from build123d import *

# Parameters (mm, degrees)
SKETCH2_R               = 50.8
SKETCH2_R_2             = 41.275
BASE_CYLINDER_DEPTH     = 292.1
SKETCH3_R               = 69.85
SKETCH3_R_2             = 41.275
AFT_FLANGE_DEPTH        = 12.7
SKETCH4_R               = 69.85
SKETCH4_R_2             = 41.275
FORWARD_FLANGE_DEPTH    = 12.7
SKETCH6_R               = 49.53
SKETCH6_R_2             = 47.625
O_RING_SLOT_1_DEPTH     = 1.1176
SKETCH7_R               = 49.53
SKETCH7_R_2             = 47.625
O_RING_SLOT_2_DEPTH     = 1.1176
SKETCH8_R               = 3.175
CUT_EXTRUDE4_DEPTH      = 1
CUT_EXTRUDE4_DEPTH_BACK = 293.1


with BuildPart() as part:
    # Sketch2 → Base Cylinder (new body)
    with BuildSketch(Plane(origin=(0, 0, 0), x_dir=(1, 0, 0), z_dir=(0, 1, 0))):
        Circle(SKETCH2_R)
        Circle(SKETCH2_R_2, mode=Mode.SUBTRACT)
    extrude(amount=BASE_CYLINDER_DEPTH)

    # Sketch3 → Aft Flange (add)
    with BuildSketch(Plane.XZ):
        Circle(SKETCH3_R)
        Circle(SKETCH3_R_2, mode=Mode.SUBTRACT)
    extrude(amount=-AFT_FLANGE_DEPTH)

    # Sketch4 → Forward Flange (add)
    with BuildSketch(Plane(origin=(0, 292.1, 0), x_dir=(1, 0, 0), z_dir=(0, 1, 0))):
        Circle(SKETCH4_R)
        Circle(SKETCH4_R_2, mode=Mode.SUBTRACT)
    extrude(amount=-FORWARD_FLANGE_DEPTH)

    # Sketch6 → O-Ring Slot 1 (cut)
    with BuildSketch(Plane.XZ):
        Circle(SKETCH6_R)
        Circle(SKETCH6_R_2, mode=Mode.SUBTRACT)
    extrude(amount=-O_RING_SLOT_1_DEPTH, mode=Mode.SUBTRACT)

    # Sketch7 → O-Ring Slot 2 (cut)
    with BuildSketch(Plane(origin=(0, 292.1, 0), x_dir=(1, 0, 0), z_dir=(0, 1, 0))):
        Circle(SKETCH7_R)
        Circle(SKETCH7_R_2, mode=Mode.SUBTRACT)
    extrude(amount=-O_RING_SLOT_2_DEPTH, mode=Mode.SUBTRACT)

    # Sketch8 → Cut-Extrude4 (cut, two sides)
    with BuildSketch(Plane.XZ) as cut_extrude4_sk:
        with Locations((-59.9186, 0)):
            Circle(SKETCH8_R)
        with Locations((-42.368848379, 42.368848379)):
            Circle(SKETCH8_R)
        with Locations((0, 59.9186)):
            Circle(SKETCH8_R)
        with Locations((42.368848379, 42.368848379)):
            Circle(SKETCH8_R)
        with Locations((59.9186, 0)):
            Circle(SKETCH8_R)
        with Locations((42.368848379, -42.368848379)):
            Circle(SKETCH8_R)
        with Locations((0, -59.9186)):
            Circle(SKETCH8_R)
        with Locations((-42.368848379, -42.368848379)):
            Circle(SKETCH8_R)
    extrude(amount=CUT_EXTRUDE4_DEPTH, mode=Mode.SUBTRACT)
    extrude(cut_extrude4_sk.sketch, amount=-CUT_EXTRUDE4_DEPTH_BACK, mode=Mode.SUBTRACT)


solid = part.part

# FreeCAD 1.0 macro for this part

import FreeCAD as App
import Part
import Sketcher
from FreeCAD import Vector
Q = App.Units.Quantity

doc = App.newDocument("Part")
body = doc.addObject("PartDesign::Body", "Body")

# Sketch on XZ plane
sketch1 = body.newObject("Sketcher::SketchObject", "Sketch")
sketch1.AttachmentSupport = (doc.getObject("XZ_Plane"), [""])
sketch1.MapMode = "FlatFace"
sketch1.addGeometry([
    Part.Circle(Vector(0, 0, 0), Vector(0, 0, 1), 50.8),
    Part.Circle(Vector(0, 0, 0), Vector(0, 0, 1), 41.275),
], False)
sketch1.addConstraint([
    Sketcher.Constraint("Coincident", 0, 3, -1, 1),
    Sketcher.Constraint("Coincident", 1, 3, -1, 1),
    Sketcher.Constraint("Diameter", 0, Q("4 in")),
    Sketcher.Constraint("Diameter", 1, Q("3.25 in")),
])
pad1 = body.newObject("PartDesign::Pad", "Pad")
pad1.Profile = sketch1
pad1.Length = Q("11.5 in")
pad1.Reversed = True

# Sketch on XZ plane
sketch2 = body.newObject("Sketcher::SketchObject", "Sketch001")
sketch2.AttachmentSupport = (doc.getObject("XZ_Plane"), [""])
sketch2.MapMode = "FlatFace"
sketch2.addGeometry([
    Part.Circle(Vector(0, 0, 0), Vector(0, 0, 1), 69.85),
    Part.Circle(Vector(0, 0, 0), Vector(0, 0, 1), 41.275),
], False)
sketch2.addConstraint([
    Sketcher.Constraint("Coincident", 0, 3, -1, 1),
    Sketcher.Constraint("Coincident", 1, 3, -1, 1),
    Sketcher.Constraint("Diameter", 0, Q("5.5 in")),
    Sketcher.Constraint("Diameter", 1, Q("3.25 in")),
])
pad2 = body.newObject("PartDesign::Pad", "Pad001")
pad2.Profile = sketch2
pad2.Length = Q("0.5 in")
pad2.Reversed = True

# Sketch on XZ plane
sketch3 = body.newObject("Sketcher::SketchObject", "Sketch002")
sketch3.AttachmentSupport = (doc.getObject("XZ_Plane"), [""])
sketch3.MapMode = "FlatFace"
sketch3.AttachmentOffset = App.Placement(Vector(0, 0, -11.5 * 25.4), App.Rotation())
sketch3.addGeometry([
    Part.Circle(Vector(0, 0, 0), Vector(0, 0, 1), 69.85),
    Part.Circle(Vector(0, 0, 0), Vector(0, 0, 1), 41.275),
], False)
sketch3.addConstraint([
    Sketcher.Constraint("Coincident", 0, 3, -1, 1),
    Sketcher.Constraint("Coincident", 1, 3, -1, 1),
    Sketcher.Constraint("Diameter", 0, Q("5.5 in")),
    Sketcher.Constraint("Diameter", 1, Q("3.25 in")),
])
pad3 = body.newObject("PartDesign::Pad", "Pad002")
pad3.Profile = sketch3
pad3.Length = Q("0.5 in")

# Sketch on XZ plane
sketch4 = body.newObject("Sketcher::SketchObject", "Sketch003")
sketch4.AttachmentSupport = (doc.getObject("XZ_Plane"), [""])
sketch4.MapMode = "FlatFace"
sketch4.addGeometry([
    Part.Circle(Vector(0, 0, 0), Vector(0, 0, 1), 49.53),
    Part.Circle(Vector(0, 0, 0), Vector(0, 0, 1), 47.625),
], False)
sketch4.addConstraint([
    Sketcher.Constraint("Coincident", 0, 3, -1, 1),
    Sketcher.Constraint("Coincident", 1, 3, -1, 1),
    Sketcher.Constraint("Diameter", 0, Q("3.9 in")),
    Sketcher.Constraint("Diameter", 1, Q("3.75 in")),
])
pocket1 = body.newObject("PartDesign::Pocket", "Pocket")
pocket1.Profile = sketch4
pocket1.Length = Q("0.044 in")

# Sketch on XZ plane
sketch5 = body.newObject("Sketcher::SketchObject", "Sketch004")
sketch5.AttachmentSupport = (doc.getObject("XZ_Plane"), [""])
sketch5.MapMode = "FlatFace"
sketch5.AttachmentOffset = App.Placement(Vector(0, 0, -11.5 * 25.4), App.Rotation())
sketch5.addGeometry([
    Part.Circle(Vector(0, 0, 0), Vector(0, 0, 1), 49.53),
    Part.Circle(Vector(0, 0, 0), Vector(0, 0, 1), 47.625),
], False)
sketch5.addConstraint([
    Sketcher.Constraint("Coincident", 0, 3, -1, 1),
    Sketcher.Constraint("Coincident", 1, 3, -1, 1),
    Sketcher.Constraint("Diameter", 0, Q("3.9 in")),
    Sketcher.Constraint("Diameter", 1, Q("3.75 in")),
])
pocket2 = body.newObject("PartDesign::Pocket", "Pocket001")
pocket2.Profile = sketch5
pocket2.Length = Q("0.044 in")
pocket2.Reversed = True

# Sketch on XZ plane
sketch6 = body.newObject("Sketcher::SketchObject", "Sketch005")
sketch6.AttachmentSupport = (doc.getObject("XZ_Plane"), [""])
sketch6.MapMode = "FlatFace"
sketch6.addGeometry([
    Part.Circle(Vector(-59.9186, 0, 0), Vector(0, 0, 1), 3.175),  # 0
    Part.Circle(Vector(-42.368848, 42.368848, 0), Vector(0, 0, 1), 3.175),  # 1
    Part.Circle(Vector(0, 59.9186, 0), Vector(0, 0, 1), 3.175),  # 2
    Part.Circle(Vector(42.368848, 42.368848, 0), Vector(0, 0, 1), 3.175),  # 3
    Part.Circle(Vector(59.9186, 0, 0), Vector(0, 0, 1), 3.175),  # 4
    Part.Circle(Vector(42.368848, -42.368848, 0), Vector(0, 0, 1), 3.175),  # 5
    Part.Circle(Vector(0, -59.9186, 0), Vector(0, 0, 1), 3.175),  # 6
    Part.Circle(Vector(-42.368848, -42.368848, 0), Vector(0, 0, 1), 3.175),  # 7
], False)
sketch6.addConstraint([
    Sketcher.Constraint("Equal", 0, 1),
    Sketcher.Constraint("Equal", 1, 2),
    Sketcher.Constraint("Equal", 2, 3),
    Sketcher.Constraint("Equal", 3, 4),
    Sketcher.Constraint("Equal", 4, 5),
    Sketcher.Constraint("Equal", 5, 6),
    Sketcher.Constraint("Equal", 6, 7),
    Sketcher.Constraint("Symmetric", 0, 3, 4, 3, -1, 1),
    Sketcher.Constraint("Symmetric", 1, 3, 5, 3, -1, 1),
    Sketcher.Constraint("Symmetric", 2, 3, 6, 3, -1, 1),
    Sketcher.Constraint("Symmetric", 3, 3, 7, 3, -1, 1),
    Sketcher.Constraint("Symmetric", 1, 3, 3, 3, -2),
    Sketcher.Constraint("PointOnObject", 0, 3, -1),
    Sketcher.Constraint("PointOnObject", 2, 3, -2),
    Sketcher.Constraint("Diameter", 0, Q("0.25 in")),
    Sketcher.Constraint("DistanceX", 0, 3, -1, 1, Q("2.359 in")),
    Sketcher.Constraint("DistanceY", -1, 1, 2, 3, Q("2.359 in")),
    Sketcher.Constraint("DistanceX", 1, 3, -1, 1, 42.368848),
    Sketcher.Constraint("DistanceY", -1, 1, 1, 3, 42.368848),
])
pocket3 = body.newObject("PartDesign::Pocket", "Pocket002")
pocket3.Profile = sketch6
pocket3.Type = "ThroughAll"
pocket3.Midplane = True

doc.recompute()
